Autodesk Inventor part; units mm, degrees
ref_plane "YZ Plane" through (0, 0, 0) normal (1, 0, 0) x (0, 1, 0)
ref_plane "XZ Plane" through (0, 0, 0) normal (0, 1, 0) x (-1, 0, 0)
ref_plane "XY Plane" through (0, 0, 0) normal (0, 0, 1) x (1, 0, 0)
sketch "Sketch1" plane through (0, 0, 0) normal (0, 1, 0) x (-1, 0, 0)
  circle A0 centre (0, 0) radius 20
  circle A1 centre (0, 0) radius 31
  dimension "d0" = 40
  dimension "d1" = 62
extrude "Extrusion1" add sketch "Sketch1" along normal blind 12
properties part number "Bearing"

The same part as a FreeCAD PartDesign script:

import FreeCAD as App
import Part
import Sketcher

doc = App.newDocument("Part")
body = doc.addObject("PartDesign::Body", "Body")

# Sketch on XZ plane
sketch1 = doc.addObject("Sketcher::SketchObject", "Sketch")
body.addObject(sketch1)
sketch1.AttachmentSupport = (doc.XZ_Plane, [""])
sketch1.MapMode = "FlatFace"
sketch1.addGeometry([
    Part.Circle(App.Vector(0, 0, 0), App.Vector(0, 0, 1), 31),
    Part.Circle(App.Vector(0, 0, 0), App.Vector(0, 0, 1), 20),
], False)
sketch1.addConstraint([
    Sketcher.Constraint("Coincident", 0, 3, -1, 1),
    Sketcher.Constraint("Coincident", 1, 3, -1, 1),
    Sketcher.Constraint("Diameter", 0, 62.0),
    Sketcher.Constraint("Diameter", 1, 40.0),
])
pad1 = doc.addObject("PartDesign::Pad", "Pad")
body.addObject(pad1)
pad1.Profile = sketch1
pad1.Length = 12
pad1.Reversed = True

doc.recompute()
